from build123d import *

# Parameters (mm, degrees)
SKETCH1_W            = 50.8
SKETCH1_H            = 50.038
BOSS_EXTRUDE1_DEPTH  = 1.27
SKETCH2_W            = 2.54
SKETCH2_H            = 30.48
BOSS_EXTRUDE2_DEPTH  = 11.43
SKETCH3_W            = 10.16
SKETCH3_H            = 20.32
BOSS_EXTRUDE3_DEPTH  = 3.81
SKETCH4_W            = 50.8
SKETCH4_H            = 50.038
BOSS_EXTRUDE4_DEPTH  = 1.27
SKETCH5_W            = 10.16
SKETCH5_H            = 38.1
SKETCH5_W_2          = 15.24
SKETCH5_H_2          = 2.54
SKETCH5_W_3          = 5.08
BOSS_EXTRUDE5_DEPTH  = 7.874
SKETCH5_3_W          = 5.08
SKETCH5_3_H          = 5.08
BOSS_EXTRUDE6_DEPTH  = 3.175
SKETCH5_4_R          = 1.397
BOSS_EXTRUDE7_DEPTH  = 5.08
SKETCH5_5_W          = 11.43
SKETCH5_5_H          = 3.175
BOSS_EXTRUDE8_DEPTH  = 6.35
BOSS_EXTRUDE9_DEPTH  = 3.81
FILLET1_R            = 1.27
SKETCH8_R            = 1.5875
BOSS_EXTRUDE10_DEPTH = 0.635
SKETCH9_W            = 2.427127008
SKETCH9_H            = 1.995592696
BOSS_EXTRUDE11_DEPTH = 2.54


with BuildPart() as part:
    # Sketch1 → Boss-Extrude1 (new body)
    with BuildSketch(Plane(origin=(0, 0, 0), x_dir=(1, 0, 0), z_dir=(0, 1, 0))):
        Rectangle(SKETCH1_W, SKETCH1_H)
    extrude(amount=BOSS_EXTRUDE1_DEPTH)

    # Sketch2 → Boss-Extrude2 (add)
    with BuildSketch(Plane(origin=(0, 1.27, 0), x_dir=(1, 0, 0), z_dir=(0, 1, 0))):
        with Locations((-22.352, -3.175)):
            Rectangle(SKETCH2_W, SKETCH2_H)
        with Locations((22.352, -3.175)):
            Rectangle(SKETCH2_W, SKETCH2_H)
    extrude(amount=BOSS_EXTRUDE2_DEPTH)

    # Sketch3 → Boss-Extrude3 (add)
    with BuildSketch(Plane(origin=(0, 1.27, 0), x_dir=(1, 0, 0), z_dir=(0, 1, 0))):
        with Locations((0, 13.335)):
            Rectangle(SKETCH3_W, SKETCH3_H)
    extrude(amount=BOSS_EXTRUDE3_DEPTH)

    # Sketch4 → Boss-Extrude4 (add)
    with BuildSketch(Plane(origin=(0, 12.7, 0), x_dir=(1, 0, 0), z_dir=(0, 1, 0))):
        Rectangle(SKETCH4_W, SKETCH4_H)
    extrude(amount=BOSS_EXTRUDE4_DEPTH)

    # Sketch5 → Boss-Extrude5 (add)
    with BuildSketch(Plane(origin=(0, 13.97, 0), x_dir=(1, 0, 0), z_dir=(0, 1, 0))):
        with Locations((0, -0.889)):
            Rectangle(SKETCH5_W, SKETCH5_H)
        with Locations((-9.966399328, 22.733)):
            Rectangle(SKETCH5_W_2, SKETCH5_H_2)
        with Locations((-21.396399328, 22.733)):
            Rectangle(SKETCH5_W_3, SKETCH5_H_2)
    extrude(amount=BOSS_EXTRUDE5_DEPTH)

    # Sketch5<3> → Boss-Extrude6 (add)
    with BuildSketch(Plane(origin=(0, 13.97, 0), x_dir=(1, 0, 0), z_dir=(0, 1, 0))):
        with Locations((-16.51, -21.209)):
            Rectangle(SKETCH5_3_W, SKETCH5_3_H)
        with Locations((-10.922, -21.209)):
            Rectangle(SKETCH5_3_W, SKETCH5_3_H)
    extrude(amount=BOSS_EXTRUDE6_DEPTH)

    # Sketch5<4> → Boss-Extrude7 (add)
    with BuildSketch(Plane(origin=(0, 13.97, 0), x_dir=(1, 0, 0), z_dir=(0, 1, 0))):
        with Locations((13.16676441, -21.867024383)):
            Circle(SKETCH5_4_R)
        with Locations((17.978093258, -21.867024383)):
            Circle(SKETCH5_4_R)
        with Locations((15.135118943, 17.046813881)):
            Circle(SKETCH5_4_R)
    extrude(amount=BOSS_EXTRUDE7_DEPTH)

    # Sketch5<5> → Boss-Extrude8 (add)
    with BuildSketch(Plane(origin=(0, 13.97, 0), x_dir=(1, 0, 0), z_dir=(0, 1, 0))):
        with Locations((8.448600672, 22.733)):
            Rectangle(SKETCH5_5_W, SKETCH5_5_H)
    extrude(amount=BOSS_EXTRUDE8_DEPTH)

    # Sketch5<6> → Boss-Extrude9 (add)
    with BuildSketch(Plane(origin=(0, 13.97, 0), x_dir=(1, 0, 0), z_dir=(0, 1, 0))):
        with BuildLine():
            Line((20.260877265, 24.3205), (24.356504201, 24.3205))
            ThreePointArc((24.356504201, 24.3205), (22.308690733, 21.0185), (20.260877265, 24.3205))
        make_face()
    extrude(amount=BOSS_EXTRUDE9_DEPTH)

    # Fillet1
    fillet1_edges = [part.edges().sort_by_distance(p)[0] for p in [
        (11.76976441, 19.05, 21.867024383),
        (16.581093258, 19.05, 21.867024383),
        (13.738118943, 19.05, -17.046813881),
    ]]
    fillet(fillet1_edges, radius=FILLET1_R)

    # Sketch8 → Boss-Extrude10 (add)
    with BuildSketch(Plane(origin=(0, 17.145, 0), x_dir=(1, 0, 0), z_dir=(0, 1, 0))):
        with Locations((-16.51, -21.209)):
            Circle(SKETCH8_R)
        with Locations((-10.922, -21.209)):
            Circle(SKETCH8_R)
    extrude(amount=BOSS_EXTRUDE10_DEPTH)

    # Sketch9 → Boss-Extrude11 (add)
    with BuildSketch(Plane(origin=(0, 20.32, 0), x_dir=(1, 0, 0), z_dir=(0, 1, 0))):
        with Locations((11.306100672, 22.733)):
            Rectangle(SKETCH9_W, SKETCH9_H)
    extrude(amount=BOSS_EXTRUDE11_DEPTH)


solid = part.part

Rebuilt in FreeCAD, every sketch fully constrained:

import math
import FreeCAD as App
import Part
import Sketcher
from FreeCAD import Vector
Q = App.Units.Quantity


def edges_at(feature, points):
    """Names of the edges that pass closest to the given points."""
    edges = feature.Shape.Edges
    near = lambda p: min(range(len(edges)), key=lambda i: edges[i].distToShape(Part.Vertex(*p))[0])
    return sorted({f"Edge{near(p) + 1}" for p in points})


def add_polygon(sketch, points):
    """Adds a closed chain of lines whose ends are joined by coincident constraints."""
    first, n = sketch.GeometryCount, len(points)
    for a, b in zip(points, points[1:] + points[:1]):
        sketch.addGeometry(Part.LineSegment(App.Vector(*a, 0), App.Vector(*b, 0)), False)
    for i in range(n):
        sketch.addConstraint(Sketcher.Constraint("Coincident", first + i, 2, first + (i + 1) % n, 1))

doc = App.newDocument("Part")
body = doc.addObject("PartDesign::Body", "Body")

# Sketch on XZ plane
sketch1 = doc.addObject("Sketcher::SketchObject", "Sketch")
body.addObject(sketch1)
sketch1.AttachmentSupport = (doc.XZ_Plane, [""])
sketch1.MapMode = "FlatFace"
add_polygon(sketch1, [(-25, -25), (-25, 25), (25, 25), (25, -25)])  # lines 0-3
sketch1.addConstraint(Sketcher.Constraint("Vertical", 0))
sketch1.addConstraint(Sketcher.Constraint("Horizontal", 1))
sketch1.addConstraint(Sketcher.Constraint("Vertical", 2))
sketch1.addConstraint(Sketcher.Constraint("Horizontal", 3))
sketch1.addConstraint(Sketcher.Constraint("Symmetric", 0, 2, 2, 2, -1, 1))
sketch1.addConstraint(Sketcher.Constraint("DistanceX", 1, 1, 1, 2, Q("2 in")))
sketch1.addConstraint(Sketcher.Constraint("DistanceY", 0, 1, 0, 2, Q("1.97 in")))
pad1 = doc.addObject("PartDesign::Pad", "Pad")
body.addObject(pad1)
pad1.Profile = sketch1
pad1.Length = Q("0.05 in")
pad1.Reversed = True

# Sketch on XZ plane
sketch2 = doc.addObject("Sketcher::SketchObject", "Sketch001")
body.addObject(sketch2)
sketch2.AttachmentSupport = (doc.XZ_Plane, [""])
sketch2.MapMode = "FlatFace"
sketch2.AttachmentOffset = App.Placement(Vector(0, 0, -0.05 * 25.4), App.Rotation())
add_polygon(sketch2, [(-23.6, -12.1), (-23.6, 18.4), (-21.1, 18.4), (-21.1, -12.1)])  # lines 0-3
add_polygon(sketch2, [(21.1, -12.1), (21.1, 18.4), (23.6, 18.4), (23.6, -12.1)])  # lines 4-7
sketch2.addConstraint(Sketcher.Constraint("Vertical", 0))
sketch2.addConstraint(Sketcher.Constraint("Horizontal", 1))
sketch2.addConstraint(Sketcher.Constraint("Vertical", 2))
sketch2.addConstraint(Sketcher.Constraint("Horizontal", 3))
sketch2.addConstraint(Sketcher.Constraint("Vertical", 4))
sketch2.addConstraint(Sketcher.Constraint("Horizontal", 5))
sketch2.addConstraint(Sketcher.Constraint("Vertical", 6))
sketch2.addConstraint(Sketcher.Constraint("Horizontal", 7))
sketch2.addConstraint(Sketcher.Constraint("Symmetric", 1, 2, 4, 2, -2))
sketch2.addConstraint(Sketcher.Constraint("Symmetric", 3, 2, 6, 2, -2))
sketch2.addConstraint(Sketcher.Constraint("DistanceX", 1, 1, 1, 2, Q("0.1 in")))
sketch2.addConstraint(Sketcher.Constraint("DistanceY", 0, 1, 0, 2, Q("1.2 in")))
sketch2.addConstraint(Sketcher.Constraint("DistanceX", 0, 2, -1, 1, Q("0.93 in")))
sketch2.addConstraint(Sketcher.Constraint("DistanceY", -1, 1, 0, 2, Q("0.725 in")))
pad2 = doc.addObject("PartDesign::Pad", "Pad001")
body.addObject(pad2)
pad2.Profile = sketch2
pad2.Length = Q("0.45 in")
pad2.Reversed = True

# Sketch on XZ plane
sketch3 = doc.addObject("Sketcher::SketchObject", "Sketch002")
body.addObject(sketch3)
sketch3.AttachmentSupport = (doc.XZ_Plane, [""])
sketch3.MapMode = "FlatFace"
sketch3.AttachmentOffset = App.Placement(Vector(0, 0, -0.05 * 25.4), App.Rotation())
add_polygon(sketch3, [(-5, -23), (-5, -3), (5, -3), (5, -23)])  # lines 0-3
sketch3.addConstraint(Sketcher.Constraint("Vertical", 0))
sketch3.addConstraint(Sketcher.Constraint("Horizontal", 1))
sketch3.addConstraint(Sketcher.Constraint("Vertical", 2))
sketch3.addConstraint(Sketcher.Constraint("Horizontal", 3))
sketch3.addConstraint(Sketcher.Constraint("DistanceX", 1, 1, 1, 2, Q("0.4 in")))
sketch3.addConstraint(Sketcher.Constraint("DistanceY", 0, 1, 0, 2, Q("0.8 in")))
sketch3.addConstraint(Sketcher.Constraint("DistanceX", 0, 2, -1, 1, Q("0.2 in")))
sketch3.addConstraint(Sketcher.Constraint("DistanceY", 0, 2, -1, 1, Q("0.125 in")))
pad3 = doc.addObject("PartDesign::Pad", "Pad002")
body.addObject(pad3)
pad3.Profile = sketch3
pad3.Length = Q("0.15 in")
pad3.Reversed = True

# Sketch on XZ plane
sketch4 = doc.addObject("Sketcher::SketchObject", "Sketch003")
body.addObject(sketch4)
sketch4.AttachmentSupport = (doc.XZ_Plane, [""])
sketch4.MapMode = "FlatFace"
sketch4.AttachmentOffset = App.Placement(Vector(0, 0, -0.5 * 25.4), App.Rotation())
add_polygon(sketch4, [(-25, -25), (-25, 25), (25, 25), (25, -25)])  # lines 0-3
sketch4.addConstraint(Sketcher.Constraint("Vertical", 0))
sketch4.addConstraint(Sketcher.Constraint("Horizontal", 1))
sketch4.addConstraint(Sketcher.Constraint("Vertical", 2))
sketch4.addConstraint(Sketcher.Constraint("Horizontal", 3))
sketch4.addConstraint(Sketcher.Constraint("Symmetric", 0, 2, 2, 2, -1, 1))
sketch4.addConstraint(Sketcher.Constraint("DistanceX", 1, 1, 1, 2, Q("2 in")))
sketch4.addConstraint(Sketcher.Constraint("DistanceY", 0, 1, 0, 2, Q("1.97 in")))
pad4 = doc.addObject("PartDesign::Pad", "Pad003")
body.addObject(pad4)
pad4.Profile = sketch4
pad4.Length = Q("0.05 in")
pad4.Reversed = True

# Sketch on XZ plane
sketch5 = doc.addObject("Sketcher::SketchObject", "Sketch004")
body.addObject(sketch5)
sketch5.AttachmentSupport = (doc.XZ_Plane, [""])
sketch5.MapMode = "FlatFace"
sketch5.AttachmentOffset = App.Placement(Vector(0, 0, -0.55 * 25.4), App.Rotation())
add_polygon(sketch5, [(-5.1, -18.2), (-5.1, 19.9), (5.1, 19.9), (5.1, -18.2)])  # lines 0-3
add_polygon(sketch5, [(-17.6, -24), (-17.6, -21.5), (-2.3, -21.5), (-2.3, -24)])  # lines 4-7
add_polygon(sketch5, [(-23.9, -24), (-23.9, -21.5), (-18.9, -21.5), (-18.9, -24)])  # lines 8-11
sketch5.addConstraint(Sketcher.Constraint("Vertical", 0))
sketch5.addConstraint(Sketcher.Constraint("Horizontal", 1))
sketch5.addConstraint(Sketcher.Constraint("Vertical", 2))
sketch5.addConstraint(Sketcher.Constraint("Horizontal", 3))
sketch5.addConstraint(Sketcher.Constraint("Vertical", 4))
sketch5.addConstraint(Sketcher.Constraint("Horizontal", 5))
sketch5.addConstraint(Sketcher.Constraint("Vertical", 6))
sketch5.addConstraint(Sketcher.Constraint("Horizontal", 7))
sketch5.addConstraint(Sketcher.Constraint("Vertical", 8))
sketch5.addConstraint(Sketcher.Constraint("Horizontal", 9))
sketch5.addConstraint(Sketcher.Constraint("Vertical", 10))
sketch5.addConstraint(Sketcher.Constraint("Horizontal", 11))
sketch5.addConstraint(Sketcher.Constraint("Horizontal", 5, 2, 8, 2))
sketch5.addConstraint(Sketcher.Constraint("Horizontal", 7, 2, 10, 2))
sketch5.addConstraint(Sketcher.Constraint("DistanceX", 1, 1, 1, 2, Q("0.4 in")))
sketch5.addConstraint(Sketcher.Constraint("DistanceX", 5, 1, 5, 2, Q("0.6 in")))
sketch5.addConstraint(Sketcher.Constraint("DistanceX", 9, 1, 9, 2, Q("0.2 in")))
sketch5.addConstraint(Sketcher.Constraint("DistanceY", 0, 1, 0, 2, Q("1.5 in")))
sketch5.addConstraint(Sketcher.Constraint("DistanceY", 4, 1, 4, 2, Q("0.1 in")))
sketch5.addConstraint(Sketcher.Constraint("DistanceX", 0, 2, -1, 1, Q("0.2 in")))
sketch5.addConstraint(Sketcher.Constraint("DistanceY", 4, 2, 3, 2, Q("0.13 in")))
sketch5.addConstraint(Sketcher.Constraint("DistanceX", 8, 2, 4, 2, Q("0.25 in")))
sketch5.addConstraint(Sketcher.Constraint("DistanceY", -1, 1, 0, 2, Q("0.785 in")))
sketch5.addConstraint(Sketcher.Constraint("DistanceX", 4, 2, -1, 1, Q("17.586399 mm")))
pad5 = doc.addObject("PartDesign::Pad", "Pad004")
body.addObject(pad5)
pad5.Profile = sketch5
pad5.Length = Q("0.31 in")
pad5.Reversed = True

# Sketch on XZ plane
sketch6 = doc.addObject("Sketcher::SketchObject", "Sketch005")
body.addObject(sketch6)
sketch6.AttachmentSupport = (doc.XZ_Plane, [""])
sketch6.MapMode = "FlatFace"
sketch6.AttachmentOffset = App.Placement(Vector(0, 0, -0.55 * 25.4), App.Rotation())
add_polygon(sketch6, [(-19, 19), (-19, 24), (-14, 24), (-14, 19)])  # lines 0-3
add_polygon(sketch6, [(-13, 19), (-13, 24), (-8, 24), (-8, 19)])  # lines 4-7
sketch6.addConstraint(Sketcher.Constraint("Vertical", 0))
sketch6.addConstraint(Sketcher.Constraint("Horizontal", 1))
sketch6.addConstraint(Sketcher.Constraint("Vertical", 2))
sketch6.addConstraint(Sketcher.Constraint("Horizontal", 3))
sketch6.addConstraint(Sketcher.Constraint("Vertical", 4))
sketch6.addConstraint(Sketcher.Constraint("Horizontal", 5))
sketch6.addConstraint(Sketcher.Constraint("Vertical", 6))
sketch6.addConstraint(Sketcher.Constraint("Horizontal", 7))
sketch6.addConstraint(Sketcher.Constraint("Horizontal", 1, 2, 4, 2))
sketch6.addConstraint(Sketcher.Constraint("Horizontal", 3, 2, 6, 2))
sketch6.addConstraint(Sketcher.Constraint("Equal", 3, 5))
sketch6.addConstraint(Sketcher.Constraint("Equal", 7, 0))
sketch6.addConstraint(Sketcher.Constraint("DistanceX", 1, 1, 1, 2, Q("0.2 in")))
sketch6.addConstraint(Sketcher.Constraint("DistanceX", 0, 2, -1, 1, Q("0.75 in")))
sketch6.addConstraint(Sketcher.Constraint("DistanceX", 4, 2, -1, 1, Q("0.53 in")))
sketch6.addConstraint(Sketcher.Constraint("DistanceY", -1, 1, 0, 2, Q("0.935 in")))
pad6 = doc.addObject("PartDesign::Pad", "Pad005")
body.addObject(pad6)
pad6.Profile = sketch6
pad6.Length = Q("0.125 in")
pad6.Reversed = True

# Sketch on XZ plane
sketch7 = doc.addObject("Sketcher::SketchObject", "Sketch006")
body.addObject(sketch7)
sketch7.AttachmentSupport = (doc.XZ_Plane, [""])
sketch7.MapMode = "FlatFace"
sketch7.AttachmentOffset = App.Placement(Vector(0, 0, -0.55 * 25.4), App.Rotation())
sketch7.addGeometry(Part.Circle(Vector(13.2, 21.9, 0), Vector(0, 0, 1), 1.4), False)
sketch7.addGeometry(Part.Circle(Vector(18, 21.9, 0), Vector(0, 0, 1), 1.4), False)
sketch7.addGeometry(Part.Circle(Vector(15.1, -17, 0), Vector(0, 0, 1), 1.4), False)
sketch7.addConstraint(Sketcher.Constraint("Equal", 0, 1))
sketch7.addConstraint(Sketcher.Constraint("Equal", 1, 2))
sketch7.addConstraint(Sketcher.Constraint("Horizontal", 0, 3, 1, 3))
sketch7.addConstraint(Sketcher.Constraint("Diameter", 0, Q("0.11 in")))
sketch7.addConstraint(Sketcher.Constraint("DistanceX", -1, 1, 2, 3, Q("15.135119 mm")))
sketch7.addConstraint(Sketcher.Constraint("DistanceX", 0, 3, 1, 3, Q("4.811329 mm")))
sketch7.addConstraint(Sketcher.Constraint("DistanceY", 2, 3, 0, 3, Q("38.913838 mm")))
sketch7.addConstraint(Sketcher.Constraint("DistanceX", -1, 1, 0, 3, Q("13.166764 mm")))
sketch7.addConstraint(Sketcher.Constraint("DistanceY", -1, 1, 0, 3, Q("21.867024 mm")))
pad7 = doc.addObject("PartDesign::Pad", "Pad006")
body.addObject(pad7)
pad7.Profile = sketch7
pad7.Length = Q("0.2 in")
pad7.Reversed = True

# Sketch on XZ plane
sketch8 = doc.addObject("Sketcher::SketchObject", "Sketch007")
body.addObject(sketch8)
sketch8.AttachmentSupport = (doc.XZ_Plane, [""])
sketch8.MapMode = "FlatFace"
sketch8.AttachmentOffset = App.Placement(Vector(0, 0, -0.55 * 25.4), App.Rotation())
add_polygon(sketch8, [(2.7, -24.3), (2.7, -21.1), (14.2, -21.1), (14.2, -24.3)])  # lines 0-3
sketch8.addConstraint(Sketcher.Constraint("Vertical", 0))
sketch8.addConstraint(Sketcher.Constraint("Horizontal", 1))
sketch8.addConstraint(Sketcher.Constraint("Vertical", 2))
sketch8.addConstraint(Sketcher.Constraint("Horizontal", 3))
sketch8.addConstraint(Sketcher.Constraint("DistanceX", 1, 1, 1, 2, Q("0.45 in")))
sketch8.addConstraint(Sketcher.Constraint("DistanceY", 0, 1, 0, 2, Q("0.125 in")))
sketch8.addConstraint(Sketcher.Constraint("DistanceY", 0, 2, -1, 1, Q("0.8325 in")))
sketch8.addConstraint(Sketcher.Constraint("DistanceX", -1, 1, 0, 2, Q("2.733601 mm")))
pad8 = doc.addObject("PartDesign::Pad", "Pad007")
body.addObject(pad8)
pad8.Profile = sketch8
pad8.Length = Q("0.25 in")
pad8.Reversed = True

# Sketch on XZ plane
sketch9 = doc.addObject("Sketcher::SketchObject", "Sketch008")
body.addObject(sketch9)
sketch9.AttachmentSupport = (doc.XZ_Plane, [""])
sketch9.MapMode = "FlatFace"
sketch9.AttachmentOffset = App.Placement(Vector(0, 0, -0.55 * 25.4), App.Rotation())
sketch9.addGeometry(Part.LineSegment(Vector(24.4, -24.3, 0), Vector(20.3, -24.3, 0)), False)
sketch9.addGeometry(Part.ArcOfCircle(Part.Circle(Vector(22.3, -23.3, 0), Vector(0, 0, 1), 2.3), math.radians(-26), math.radians(206)), False)
sketch9.addConstraint(Sketcher.Constraint("Coincident", 0, 1, 1, 1))
sketch9.addConstraint(Sketcher.Constraint("Coincident", 1, 2, 0, 2))
sketch9.addConstraint(Sketcher.Constraint("Horizontal", 0))
sketch9.addConstraint(Sketcher.Constraint("Radius", 1, Q("0.09 in")))
sketch9.addConstraint(Sketcher.Constraint("DistanceY", 0, 1, 1, 3, Q("0.04 in")))
sketch9.addConstraint(Sketcher.Constraint("DistanceY", 1, 3, -1, 1, Q("0.9175 in")))
sketch9.addConstraint(Sketcher.Constraint("DistanceX", -1, 1, 1, 3, Q("22.308691 mm")))
pad9 = doc.addObject("PartDesign::Pad", "Pad008")
body.addObject(pad9)
pad9.Profile = sketch9
pad9.Length = Q("0.15 in")
pad9.Reversed = True
doc.recompute()

fillet = doc.addObject("PartDesign::Fillet", "Fillet")
body.addObject(fillet)
fillet.Base = (pad9, edges_at(pad9, [(11.77, 19.05, 21.867), (16.581, 19.05, 21.867), (13.738, 19.05, -17.047)]))
fillet.Radius = Q("0.05 in")

# Sketch on XZ plane
sketch10 = doc.addObject("Sketcher::SketchObject", "Sketch009")
body.addObject(sketch10)
sketch10.AttachmentSupport = (doc.XZ_Plane, [""])
sketch10.MapMode = "FlatFace"
sketch10.AttachmentOffset = App.Placement(Vector(0, 0, -0.675 * 25.4), App.Rotation())
sketch10.addGeometry(Part.Circle(Vector(-16.5, 21.2, 0), Vector(0, 0, 1), 1.6), False)
sketch10.addGeometry(Part.Circle(Vector(-10.9, 21.2, 0), Vector(0, 0, 1), 1.6), False)
sketch10.addConstraint(Sketcher.Constraint("Equal", 0, 1))
sketch10.addConstraint(Sketcher.Constraint("Horizontal", 0, 3, 1, 3))
sketch10.addConstraint(Sketcher.Constraint("Diameter", 0, Q("0.125 in")))
sketch10.addConstraint(Sketcher.Constraint("DistanceX", 0, 3, -1, 1, Q("0.65 in")))
sketch10.addConstraint(Sketcher.Constraint("DistanceX", 1, 3, -1, 1, Q("0.43 in")))
sketch10.addConstraint(Sketcher.Constraint("DistanceY", -1, 1, 0, 3, Q("0.835 in")))
pad10 = doc.addObject("PartDesign::Pad", "Pad009")
body.addObject(pad10)
pad10.Profile = sketch10
pad10.Length = Q("0.025 in")
pad10.Reversed = True

# Sketch on XZ plane
sketch11 = doc.addObject("Sketcher::SketchObject", "Sketch010")
body.addObject(sketch11)
sketch11.AttachmentSupport = (doc.XZ_Plane, [""])
sketch11.MapMode = "FlatFace"
sketch11.AttachmentOffset = App.Placement(Vector(0, 0, -0.8 * 25.4), App.Rotation())
add_polygon(sketch11, [(10.1, -23.7), (10.1, -21.7), (12.5, -21.7), (12.5, -23.7)])  # lines 0-3
sketch11.addConstraint(Sketcher.Constraint("Vertical", 0))
sketch11.addConstraint(Sketcher.Constraint("Horizontal", 1))
sketch11.addConstraint(Sketcher.Constraint("Vertical", 2))
sketch11.addConstraint(Sketcher.Constraint("Horizontal", 3))
sketch11.addConstraint(Sketcher.Constraint("DistanceX", -1, 1, 1, 2, Q("0.4929002 in")))
sketch11.addConstraint(Sketcher.Constraint("DistanceX", 1, 1, 1, 2, Q("2.427127 mm")))
sketch11.addConstraint(Sketcher.Constraint("DistanceY", 0, 1, 0, 2, Q("1.995593 mm")))
sketch11.addConstraint(Sketcher.Constraint("DistanceY", 0, 2, -1, 1, Q("21.735204 mm")))
pad11 = doc.addObject("PartDesign::Pad", "Pad010")
body.addObject(pad11)
pad11.Profile = sketch11
pad11.Length = Q("0.1 in")
pad11.Reversed = True

doc.recompute()
